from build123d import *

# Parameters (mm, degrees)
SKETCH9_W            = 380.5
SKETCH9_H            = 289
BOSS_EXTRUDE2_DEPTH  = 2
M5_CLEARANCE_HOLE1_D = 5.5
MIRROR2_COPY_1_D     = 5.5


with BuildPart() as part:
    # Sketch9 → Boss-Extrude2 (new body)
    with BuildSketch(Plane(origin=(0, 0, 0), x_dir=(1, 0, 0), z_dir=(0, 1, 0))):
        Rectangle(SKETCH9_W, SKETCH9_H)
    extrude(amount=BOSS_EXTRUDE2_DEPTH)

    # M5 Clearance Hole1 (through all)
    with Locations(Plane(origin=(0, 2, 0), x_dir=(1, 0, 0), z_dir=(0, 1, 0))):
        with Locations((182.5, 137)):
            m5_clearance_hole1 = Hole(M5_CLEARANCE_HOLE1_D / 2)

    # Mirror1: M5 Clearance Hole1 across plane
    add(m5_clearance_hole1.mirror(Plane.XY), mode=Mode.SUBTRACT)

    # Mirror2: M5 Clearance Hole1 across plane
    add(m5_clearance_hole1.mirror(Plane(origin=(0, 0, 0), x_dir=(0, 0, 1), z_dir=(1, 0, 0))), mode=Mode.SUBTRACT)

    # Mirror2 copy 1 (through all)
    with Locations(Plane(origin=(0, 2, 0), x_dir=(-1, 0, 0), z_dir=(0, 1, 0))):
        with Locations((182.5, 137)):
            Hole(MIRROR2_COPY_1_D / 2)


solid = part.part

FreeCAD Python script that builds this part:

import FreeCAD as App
import Part
import Sketcher
from FreeCAD import Vector


def add_polygon(sketch, points):
    """Adds a closed chain of lines whose ends are joined by coincident constraints."""
    first, n = sketch.GeometryCount, len(points)
    for a, b in zip(points, points[1:] + points[:1]):
        sketch.addGeometry(Part.LineSegment(App.Vector(*a, 0), App.Vector(*b, 0)), False)
    for i in range(n):
        sketch.addConstraint(Sketcher.Constraint("Coincident", first + i, 2, first + (i + 1) % n, 1))

doc = App.newDocument("Part")
params = doc.addObject("Spreadsheet::Sheet", "Params")
for row, (alias, value) in enumerate([
    ("sketch1_height", "289 mm"),
    ("sketch1_width", "380.5 mm"),
    ("pad1_length", "2 mm"),
    ("sketch2_diameter", "5.5 mm"),
    ("hole_diameter", "5.5 mm"),
    ("sketch3_diameter", "5.5 mm"),
    ("hole2_diameter", "5.5 mm"),
], start=1):
    params.set(f"A{row}", alias)
    params.set(f"B{row}", "=" + value)
    params.setAlias(f"B{row}", alias)

body = doc.addObject("PartDesign::Body", "Body")

sketch1 = body.newObject("Sketcher::SketchObject", "Sketch")
sketch1.AttachmentSupport = (doc.getObject("XZ_Plane"), [""])
sketch1.MapMode = "FlatFace"
add_polygon(sketch1, [(-190, -144), (-190, 144), (190, 144), (190, -144)])
sketch1.addConstraint(Sketcher.Constraint("Vertical", 0))
sketch1.addConstraint(Sketcher.Constraint("Horizontal", 1))
sketch1.addConstraint(Sketcher.Constraint("Vertical", 2))
sketch1.addConstraint(Sketcher.Constraint("Horizontal", 3))
sketch1.addConstraint(Sketcher.Constraint("Symmetric", 0, 2, 2, 2, -1, 1))
sketch1.addConstraint(Sketcher.Constraint("DistanceY", 0, 1, 0, 2, 289.0))
sketch1.addConstraint(Sketcher.Constraint("DistanceX", 1, 1, 1, 2, 380.5))
sketch1.setExpression("Constraints[9]", "Params.sketch1_height")
sketch1.setExpression("Constraints[10]", "Params.sketch1_width")
pad1 = body.newObject("PartDesign::Pad", "Pad")
pad1.Profile = sketch1
pad1.setExpression("Length", "Params.pad1_length")
pad1.Reversed = True

sketch2 = body.newObject("Sketcher::SketchObject", "Sketch001")
sketch2.AttachmentSupport = (doc.getObject("XZ_Plane"), [""])
sketch2.MapMode = "FlatFace"
sketch2.AttachmentOffset = App.Placement(Vector(0, 0, -2), App.Rotation())
sketch2.addGeometry(Part.Circle(Vector(182.5, -137, 0), Vector(0, 0, 1), 2.8), False)
sketch2.addConstraint(Sketcher.Constraint("Diameter", 0, 5.5))
sketch2.addConstraint(Sketcher.Constraint("DistanceY", 0, 3, -1, 1, 137.0))
sketch2.addConstraint(Sketcher.Constraint("DistanceX", -1, 1, 0, 3, 182.5))
sketch2.setExpression("Constraints[0]", "Params.sketch2_diameter")
doc.recompute()
hole = body.newObject("PartDesign::Hole", "Hole")
hole.Profile = sketch2
hole.ThreadType = "None"
hole.setExpression("Diameter", "Params.hole_diameter")
hole.DepthType = "ThroughAll"
hole.Reversed = True
doc.recompute()

mirrored = body.newObject("PartDesign::Mirrored", "Mirrored")
mirrored.Originals = [hole]
mirrored.MirrorPlane = (doc.getObject("XY_Plane"), [""])
body.Tip = mirrored
doc.recompute()

mirrored2 = body.newObject("PartDesign::Mirrored", "Mirrored001")
mirrored2.Originals = [hole]
mirrored2.MirrorPlane = (doc.getObject("YZ_Plane"), [""])
body.Tip = mirrored2

sketch3 = body.newObject("Sketcher::SketchObject", "Sketch002")
sketch3.AttachmentSupport = (doc.getObject("XZ_Plane"), [""])
sketch3.MapMode = "FlatFace"
sketch3.AttachmentOffset = App.Placement(Vector(0, 0, -2), App.Rotation())
sketch3.addGeometry(Part.Circle(Vector(-182.5, 137, 0), Vector(0, 0, 1), 2.8), False)
sketch3.addConstraint(Sketcher.Constraint("Diameter", 0, 5.5))
sketch3.addConstraint(Sketcher.Constraint("DistanceY", -1, 1, 0, 3, 137.0))
sketch3.addConstraint(Sketcher.Constraint("DistanceX", 0, 3, -1, 1, 182.5))
sketch3.setExpression("Constraints[0]", "Params.sketch3_diameter")
doc.recompute()
hole2 = body.newObject("PartDesign::Hole", "Hole001")
hole2.Profile = sketch3
hole2.ThreadType = "None"
hole2.setExpression("Diameter", "Params.hole2_diameter")
hole2.DepthType = "ThroughAll"
hole2.Reversed = True

doc.recompute()
